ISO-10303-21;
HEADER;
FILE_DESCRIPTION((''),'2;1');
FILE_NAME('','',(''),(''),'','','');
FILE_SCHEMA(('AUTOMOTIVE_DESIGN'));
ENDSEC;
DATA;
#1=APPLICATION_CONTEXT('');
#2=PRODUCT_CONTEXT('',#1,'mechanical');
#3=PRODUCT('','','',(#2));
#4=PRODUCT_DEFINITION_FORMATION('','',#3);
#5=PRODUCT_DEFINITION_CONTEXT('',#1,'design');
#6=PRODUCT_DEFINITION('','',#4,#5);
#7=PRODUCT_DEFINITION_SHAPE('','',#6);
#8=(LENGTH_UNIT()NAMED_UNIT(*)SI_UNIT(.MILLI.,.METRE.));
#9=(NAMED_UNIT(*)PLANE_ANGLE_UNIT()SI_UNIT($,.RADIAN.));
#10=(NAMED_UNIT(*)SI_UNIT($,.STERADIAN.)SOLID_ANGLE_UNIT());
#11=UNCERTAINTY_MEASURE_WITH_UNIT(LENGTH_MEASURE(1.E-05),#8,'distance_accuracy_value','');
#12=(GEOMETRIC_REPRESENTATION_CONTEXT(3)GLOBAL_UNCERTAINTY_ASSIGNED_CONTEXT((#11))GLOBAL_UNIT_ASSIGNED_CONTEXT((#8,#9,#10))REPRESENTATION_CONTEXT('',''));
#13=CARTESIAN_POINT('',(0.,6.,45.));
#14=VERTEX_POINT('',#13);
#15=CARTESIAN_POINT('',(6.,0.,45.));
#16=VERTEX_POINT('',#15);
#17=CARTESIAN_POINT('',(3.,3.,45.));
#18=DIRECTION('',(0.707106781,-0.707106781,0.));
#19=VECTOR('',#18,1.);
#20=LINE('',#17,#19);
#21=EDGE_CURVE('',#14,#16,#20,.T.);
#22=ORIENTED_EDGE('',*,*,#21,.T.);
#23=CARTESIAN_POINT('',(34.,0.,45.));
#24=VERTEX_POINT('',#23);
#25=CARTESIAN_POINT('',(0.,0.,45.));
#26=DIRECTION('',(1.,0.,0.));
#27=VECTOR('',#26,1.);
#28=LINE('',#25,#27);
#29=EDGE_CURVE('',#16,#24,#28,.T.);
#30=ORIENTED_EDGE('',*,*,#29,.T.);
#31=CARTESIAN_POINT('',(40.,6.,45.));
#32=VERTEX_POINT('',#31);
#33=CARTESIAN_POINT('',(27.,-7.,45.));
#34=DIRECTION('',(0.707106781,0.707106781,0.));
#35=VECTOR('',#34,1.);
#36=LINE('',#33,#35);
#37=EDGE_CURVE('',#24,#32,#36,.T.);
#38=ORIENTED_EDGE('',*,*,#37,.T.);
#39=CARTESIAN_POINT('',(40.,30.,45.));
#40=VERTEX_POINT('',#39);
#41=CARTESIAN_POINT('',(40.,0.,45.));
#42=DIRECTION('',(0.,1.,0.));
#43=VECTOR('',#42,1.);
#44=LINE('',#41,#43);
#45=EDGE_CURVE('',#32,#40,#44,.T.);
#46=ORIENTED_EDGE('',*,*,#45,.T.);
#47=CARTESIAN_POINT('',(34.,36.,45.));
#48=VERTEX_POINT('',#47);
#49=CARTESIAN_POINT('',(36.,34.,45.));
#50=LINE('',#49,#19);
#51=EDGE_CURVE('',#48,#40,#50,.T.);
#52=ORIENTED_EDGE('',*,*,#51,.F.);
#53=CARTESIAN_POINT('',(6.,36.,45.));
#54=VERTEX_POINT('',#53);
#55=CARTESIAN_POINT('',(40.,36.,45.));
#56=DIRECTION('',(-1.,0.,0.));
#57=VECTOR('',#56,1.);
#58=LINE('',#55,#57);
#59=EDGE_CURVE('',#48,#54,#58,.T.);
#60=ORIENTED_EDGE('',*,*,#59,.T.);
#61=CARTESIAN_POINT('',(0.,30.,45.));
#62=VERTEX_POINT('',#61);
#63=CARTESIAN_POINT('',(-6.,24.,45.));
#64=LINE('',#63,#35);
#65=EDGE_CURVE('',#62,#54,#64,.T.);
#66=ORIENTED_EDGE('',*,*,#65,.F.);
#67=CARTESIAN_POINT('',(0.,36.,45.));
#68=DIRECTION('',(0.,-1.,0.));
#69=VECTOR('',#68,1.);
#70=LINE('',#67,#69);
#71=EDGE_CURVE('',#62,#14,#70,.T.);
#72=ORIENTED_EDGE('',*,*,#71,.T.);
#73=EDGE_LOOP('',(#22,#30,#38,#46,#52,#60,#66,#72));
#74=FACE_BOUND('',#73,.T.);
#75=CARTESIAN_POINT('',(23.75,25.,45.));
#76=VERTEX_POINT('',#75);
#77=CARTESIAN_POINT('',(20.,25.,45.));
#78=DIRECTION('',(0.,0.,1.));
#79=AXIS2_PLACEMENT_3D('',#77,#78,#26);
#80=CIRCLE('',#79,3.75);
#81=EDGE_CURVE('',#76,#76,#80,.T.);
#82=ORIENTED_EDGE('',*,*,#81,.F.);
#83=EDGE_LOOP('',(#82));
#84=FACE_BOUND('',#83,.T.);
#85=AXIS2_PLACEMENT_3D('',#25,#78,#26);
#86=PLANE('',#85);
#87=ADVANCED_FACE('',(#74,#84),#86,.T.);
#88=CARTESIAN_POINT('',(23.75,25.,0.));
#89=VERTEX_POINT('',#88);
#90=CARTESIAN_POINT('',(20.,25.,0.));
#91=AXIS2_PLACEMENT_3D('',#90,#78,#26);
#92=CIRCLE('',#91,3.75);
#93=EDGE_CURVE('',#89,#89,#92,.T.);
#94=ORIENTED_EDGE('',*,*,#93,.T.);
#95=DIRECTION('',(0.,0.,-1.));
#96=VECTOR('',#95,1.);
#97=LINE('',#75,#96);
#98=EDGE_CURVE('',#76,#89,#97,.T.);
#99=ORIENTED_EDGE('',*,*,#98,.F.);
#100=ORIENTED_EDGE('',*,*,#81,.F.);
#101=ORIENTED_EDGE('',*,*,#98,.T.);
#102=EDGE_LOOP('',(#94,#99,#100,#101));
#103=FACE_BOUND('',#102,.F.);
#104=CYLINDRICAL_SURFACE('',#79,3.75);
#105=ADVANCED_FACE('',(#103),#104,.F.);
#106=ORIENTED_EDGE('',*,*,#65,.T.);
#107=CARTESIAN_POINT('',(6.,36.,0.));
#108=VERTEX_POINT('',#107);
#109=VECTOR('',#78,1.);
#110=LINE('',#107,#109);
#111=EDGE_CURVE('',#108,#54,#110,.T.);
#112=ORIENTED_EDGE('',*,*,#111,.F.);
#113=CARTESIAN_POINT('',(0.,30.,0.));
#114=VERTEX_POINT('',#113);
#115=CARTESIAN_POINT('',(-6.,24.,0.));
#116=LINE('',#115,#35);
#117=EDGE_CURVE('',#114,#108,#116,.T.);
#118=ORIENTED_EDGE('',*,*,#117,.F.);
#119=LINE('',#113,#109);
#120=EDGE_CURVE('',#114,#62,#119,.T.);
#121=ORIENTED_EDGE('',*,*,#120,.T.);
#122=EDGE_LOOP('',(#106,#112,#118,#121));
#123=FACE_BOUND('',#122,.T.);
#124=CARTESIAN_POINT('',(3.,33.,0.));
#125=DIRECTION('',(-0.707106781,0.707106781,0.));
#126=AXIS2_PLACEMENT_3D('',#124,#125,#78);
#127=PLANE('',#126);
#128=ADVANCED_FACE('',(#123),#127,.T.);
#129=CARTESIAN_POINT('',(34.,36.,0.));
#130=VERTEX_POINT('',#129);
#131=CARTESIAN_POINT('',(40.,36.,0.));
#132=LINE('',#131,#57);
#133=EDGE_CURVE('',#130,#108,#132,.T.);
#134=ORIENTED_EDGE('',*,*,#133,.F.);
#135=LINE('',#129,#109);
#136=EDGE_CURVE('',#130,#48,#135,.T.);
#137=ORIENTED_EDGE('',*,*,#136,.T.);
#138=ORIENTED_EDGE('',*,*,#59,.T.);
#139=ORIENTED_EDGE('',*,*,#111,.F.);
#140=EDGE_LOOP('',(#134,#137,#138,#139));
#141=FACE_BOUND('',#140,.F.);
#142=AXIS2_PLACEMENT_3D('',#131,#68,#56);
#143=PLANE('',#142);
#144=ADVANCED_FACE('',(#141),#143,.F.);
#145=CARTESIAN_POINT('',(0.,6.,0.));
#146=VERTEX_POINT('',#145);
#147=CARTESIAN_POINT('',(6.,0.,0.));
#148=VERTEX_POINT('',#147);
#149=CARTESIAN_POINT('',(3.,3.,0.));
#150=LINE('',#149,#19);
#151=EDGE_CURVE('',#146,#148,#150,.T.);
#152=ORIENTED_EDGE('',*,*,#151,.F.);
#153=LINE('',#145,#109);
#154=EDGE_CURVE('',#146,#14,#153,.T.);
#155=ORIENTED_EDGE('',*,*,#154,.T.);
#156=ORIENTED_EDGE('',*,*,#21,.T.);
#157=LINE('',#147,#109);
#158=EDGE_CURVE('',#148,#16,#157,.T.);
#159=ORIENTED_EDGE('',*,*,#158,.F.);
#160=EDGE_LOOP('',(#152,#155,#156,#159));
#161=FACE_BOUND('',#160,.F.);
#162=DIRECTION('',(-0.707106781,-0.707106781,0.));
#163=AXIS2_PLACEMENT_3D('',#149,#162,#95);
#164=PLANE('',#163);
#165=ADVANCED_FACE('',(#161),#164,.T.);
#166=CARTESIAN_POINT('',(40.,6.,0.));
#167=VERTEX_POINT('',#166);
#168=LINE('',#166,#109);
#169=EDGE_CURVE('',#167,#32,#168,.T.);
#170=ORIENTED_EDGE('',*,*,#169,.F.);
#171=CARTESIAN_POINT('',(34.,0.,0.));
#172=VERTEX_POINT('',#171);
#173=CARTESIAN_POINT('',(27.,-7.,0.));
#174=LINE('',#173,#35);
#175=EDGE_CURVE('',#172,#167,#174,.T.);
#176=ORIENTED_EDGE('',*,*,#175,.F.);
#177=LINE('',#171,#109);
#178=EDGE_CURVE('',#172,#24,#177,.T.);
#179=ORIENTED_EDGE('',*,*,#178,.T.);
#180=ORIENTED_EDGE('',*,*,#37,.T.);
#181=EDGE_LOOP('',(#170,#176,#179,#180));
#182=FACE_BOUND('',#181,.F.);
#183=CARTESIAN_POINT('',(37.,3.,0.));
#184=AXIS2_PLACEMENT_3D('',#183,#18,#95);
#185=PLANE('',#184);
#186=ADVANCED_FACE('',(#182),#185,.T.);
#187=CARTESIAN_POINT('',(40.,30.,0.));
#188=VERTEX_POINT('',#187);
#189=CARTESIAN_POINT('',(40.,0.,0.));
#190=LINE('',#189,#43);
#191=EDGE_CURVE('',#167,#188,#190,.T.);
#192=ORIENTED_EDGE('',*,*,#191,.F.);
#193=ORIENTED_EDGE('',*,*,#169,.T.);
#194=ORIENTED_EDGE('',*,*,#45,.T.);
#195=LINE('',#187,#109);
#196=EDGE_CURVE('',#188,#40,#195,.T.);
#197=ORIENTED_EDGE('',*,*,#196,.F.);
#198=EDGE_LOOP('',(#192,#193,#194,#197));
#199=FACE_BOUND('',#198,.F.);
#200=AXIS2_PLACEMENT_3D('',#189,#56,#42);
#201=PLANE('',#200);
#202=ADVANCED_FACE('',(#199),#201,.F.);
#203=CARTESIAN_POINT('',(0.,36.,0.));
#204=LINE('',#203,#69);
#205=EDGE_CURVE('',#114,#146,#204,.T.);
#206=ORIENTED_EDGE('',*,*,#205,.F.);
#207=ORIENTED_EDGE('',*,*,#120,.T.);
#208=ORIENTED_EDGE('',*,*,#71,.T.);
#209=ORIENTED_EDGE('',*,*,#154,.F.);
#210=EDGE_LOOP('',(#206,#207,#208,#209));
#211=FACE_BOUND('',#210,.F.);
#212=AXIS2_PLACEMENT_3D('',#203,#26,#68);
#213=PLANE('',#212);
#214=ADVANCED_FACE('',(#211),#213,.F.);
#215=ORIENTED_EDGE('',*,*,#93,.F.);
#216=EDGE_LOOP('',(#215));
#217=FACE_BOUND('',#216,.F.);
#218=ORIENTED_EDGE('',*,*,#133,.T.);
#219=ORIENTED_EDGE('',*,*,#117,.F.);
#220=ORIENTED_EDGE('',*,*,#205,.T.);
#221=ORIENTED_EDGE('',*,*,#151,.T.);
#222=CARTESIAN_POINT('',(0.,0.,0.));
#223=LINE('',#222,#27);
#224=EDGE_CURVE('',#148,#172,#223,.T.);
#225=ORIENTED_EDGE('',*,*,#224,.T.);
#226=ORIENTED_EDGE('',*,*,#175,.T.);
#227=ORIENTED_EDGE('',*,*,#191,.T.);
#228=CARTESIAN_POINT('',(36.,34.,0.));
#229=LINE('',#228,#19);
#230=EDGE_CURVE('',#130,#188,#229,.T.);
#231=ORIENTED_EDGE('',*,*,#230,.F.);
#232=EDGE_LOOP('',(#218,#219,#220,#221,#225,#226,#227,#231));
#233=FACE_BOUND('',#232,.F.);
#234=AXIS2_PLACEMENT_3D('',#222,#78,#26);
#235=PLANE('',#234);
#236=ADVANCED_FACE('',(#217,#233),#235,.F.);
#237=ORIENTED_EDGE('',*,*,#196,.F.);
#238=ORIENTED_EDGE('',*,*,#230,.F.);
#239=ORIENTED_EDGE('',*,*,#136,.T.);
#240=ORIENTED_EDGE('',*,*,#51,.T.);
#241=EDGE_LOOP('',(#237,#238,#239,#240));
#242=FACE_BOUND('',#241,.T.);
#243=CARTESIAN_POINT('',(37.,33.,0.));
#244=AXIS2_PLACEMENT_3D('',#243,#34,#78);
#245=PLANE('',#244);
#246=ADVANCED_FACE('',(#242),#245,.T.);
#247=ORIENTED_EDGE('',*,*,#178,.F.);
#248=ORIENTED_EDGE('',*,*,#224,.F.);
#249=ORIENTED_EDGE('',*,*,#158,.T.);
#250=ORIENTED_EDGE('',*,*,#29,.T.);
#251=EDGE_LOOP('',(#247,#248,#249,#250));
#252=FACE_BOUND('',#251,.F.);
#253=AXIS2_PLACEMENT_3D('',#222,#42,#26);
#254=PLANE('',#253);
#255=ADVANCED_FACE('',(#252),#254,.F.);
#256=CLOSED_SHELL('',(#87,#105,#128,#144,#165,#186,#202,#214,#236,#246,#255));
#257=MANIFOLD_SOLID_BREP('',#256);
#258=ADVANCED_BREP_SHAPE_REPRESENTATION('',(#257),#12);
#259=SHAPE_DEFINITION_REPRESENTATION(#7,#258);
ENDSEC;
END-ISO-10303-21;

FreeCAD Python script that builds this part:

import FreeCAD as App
import Part
import Sketcher
from FreeCAD import Vector
Q = App.Units.Quantity


def edges_at(feature, points):
    """Names of the edges that pass closest to the given points."""
    edges = feature.Shape.Edges
    near = lambda p: min(range(len(edges)), key=lambda i: edges[i].distToShape(Part.Vertex(*p))[0])
    return sorted({f"Edge{near(p) + 1}" for p in points})

doc = App.newDocument("Part")
params = doc.addObject("Spreadsheet::Sheet", "Params")
for row, (alias, value) in enumerate([
    ("sketch1_width", "40 mm"),
    ("sketch1_height", "36 mm"),
    ("pad1_length", "45 mm"),
    ("sketch2_diameter", "7.5 mm"),
    ("chamfer_size", "6 mm"),
], start=1):
    params.set(f"A{row}", alias)
    params.set(f"B{row}", "=" + value)
    params.setAlias(f"B{row}", alias)

body = doc.addObject("PartDesign::Body", "Body")

sketch1 = body.newObject("Sketcher::SketchObject", "Sketch")
sketch1.AttachmentSupport = (doc.getObject("XY_Plane"), [""])
sketch1.MapMode = "FlatFace"
sketch1.addGeometry([
    Part.LineSegment(Vector(0, 36, 0), Vector(0, 0, 0)),
    Part.LineSegment(Vector(0, 0, 0), Vector(40, 0, 0)),
    Part.LineSegment(Vector(40, 0, 0), Vector(40, 36, 0)),
    Part.LineSegment(Vector(40, 36, 0), Vector(0, 36, 0)),
], False)
sketch1.addConstraint([
    Sketcher.Constraint("Coincident", 0, 2, 1, 1),
    Sketcher.Constraint("Coincident", 1, 2, 2, 1),
    Sketcher.Constraint("Coincident", 2, 2, 3, 1),
    Sketcher.Constraint("Coincident", 3, 2, 0, 1),
    Sketcher.Constraint("Vertical", 0),
    Sketcher.Constraint("Horizontal", 1),
    Sketcher.Constraint("Vertical", 2),
    Sketcher.Constraint("Horizontal", 3),
    Sketcher.Constraint("Coincident", 0, 2, -1, 1),
    Sketcher.Constraint("DistanceX", 1, 1, 1, 2, Q("40 mm")),
    Sketcher.Constraint("DistanceY", 0, 2, 0, 1, Q("36 mm")),
])
sketch1.setExpression("Constraints[9]", "Params.sketch1_width")
sketch1.setExpression("Constraints[10]", "Params.sketch1_height")
pad1 = body.newObject("PartDesign::Pad", "Pad")
pad1.Profile = sketch1
pad1.setExpression("Length", "Params.pad1_length")

sketch2 = body.newObject("Sketcher::SketchObject", "Sketch001")
sketch2.AttachmentSupport = (doc.getObject("XY_Plane"), [""])
sketch2.MapMode = "FlatFace"
sketch2.AttachmentOffset = App.Placement(Vector(0, 0, 45), App.Rotation())
sketch2.addGeometry(Part.Circle(Vector(20, 25, 0), Vector(0, 0, 1), 3.8), False)
sketch2.addConstraint([
    Sketcher.Constraint("Diameter", 0, Q("7.5 mm")),
    Sketcher.Constraint("DistanceY", -1, 1, 0, 3, Q("25 mm")),
    Sketcher.Constraint("DistanceX", -1, 1, 0, 3, Q("20 mm")),
])
sketch2.setExpression("Constraints[0]", "Params.sketch2_diameter")
pocket1 = body.newObject("PartDesign::Pocket", "Pocket")
pocket1.Profile = sketch2
pocket1.Type = "ThroughAll"
doc.recompute()

chamfer = body.newObject("PartDesign::Chamfer", "Chamfer")
chamfer.Base = (pocket1, edges_at(pocket1, [
    (40, 36, 22.5),
    (40, 0, 22.5),
    (0, 36, 22.5),
    (0, 0, 22.5),
]))
chamfer.setExpression("Size", "Params.chamfer_size")

doc.recompute()
